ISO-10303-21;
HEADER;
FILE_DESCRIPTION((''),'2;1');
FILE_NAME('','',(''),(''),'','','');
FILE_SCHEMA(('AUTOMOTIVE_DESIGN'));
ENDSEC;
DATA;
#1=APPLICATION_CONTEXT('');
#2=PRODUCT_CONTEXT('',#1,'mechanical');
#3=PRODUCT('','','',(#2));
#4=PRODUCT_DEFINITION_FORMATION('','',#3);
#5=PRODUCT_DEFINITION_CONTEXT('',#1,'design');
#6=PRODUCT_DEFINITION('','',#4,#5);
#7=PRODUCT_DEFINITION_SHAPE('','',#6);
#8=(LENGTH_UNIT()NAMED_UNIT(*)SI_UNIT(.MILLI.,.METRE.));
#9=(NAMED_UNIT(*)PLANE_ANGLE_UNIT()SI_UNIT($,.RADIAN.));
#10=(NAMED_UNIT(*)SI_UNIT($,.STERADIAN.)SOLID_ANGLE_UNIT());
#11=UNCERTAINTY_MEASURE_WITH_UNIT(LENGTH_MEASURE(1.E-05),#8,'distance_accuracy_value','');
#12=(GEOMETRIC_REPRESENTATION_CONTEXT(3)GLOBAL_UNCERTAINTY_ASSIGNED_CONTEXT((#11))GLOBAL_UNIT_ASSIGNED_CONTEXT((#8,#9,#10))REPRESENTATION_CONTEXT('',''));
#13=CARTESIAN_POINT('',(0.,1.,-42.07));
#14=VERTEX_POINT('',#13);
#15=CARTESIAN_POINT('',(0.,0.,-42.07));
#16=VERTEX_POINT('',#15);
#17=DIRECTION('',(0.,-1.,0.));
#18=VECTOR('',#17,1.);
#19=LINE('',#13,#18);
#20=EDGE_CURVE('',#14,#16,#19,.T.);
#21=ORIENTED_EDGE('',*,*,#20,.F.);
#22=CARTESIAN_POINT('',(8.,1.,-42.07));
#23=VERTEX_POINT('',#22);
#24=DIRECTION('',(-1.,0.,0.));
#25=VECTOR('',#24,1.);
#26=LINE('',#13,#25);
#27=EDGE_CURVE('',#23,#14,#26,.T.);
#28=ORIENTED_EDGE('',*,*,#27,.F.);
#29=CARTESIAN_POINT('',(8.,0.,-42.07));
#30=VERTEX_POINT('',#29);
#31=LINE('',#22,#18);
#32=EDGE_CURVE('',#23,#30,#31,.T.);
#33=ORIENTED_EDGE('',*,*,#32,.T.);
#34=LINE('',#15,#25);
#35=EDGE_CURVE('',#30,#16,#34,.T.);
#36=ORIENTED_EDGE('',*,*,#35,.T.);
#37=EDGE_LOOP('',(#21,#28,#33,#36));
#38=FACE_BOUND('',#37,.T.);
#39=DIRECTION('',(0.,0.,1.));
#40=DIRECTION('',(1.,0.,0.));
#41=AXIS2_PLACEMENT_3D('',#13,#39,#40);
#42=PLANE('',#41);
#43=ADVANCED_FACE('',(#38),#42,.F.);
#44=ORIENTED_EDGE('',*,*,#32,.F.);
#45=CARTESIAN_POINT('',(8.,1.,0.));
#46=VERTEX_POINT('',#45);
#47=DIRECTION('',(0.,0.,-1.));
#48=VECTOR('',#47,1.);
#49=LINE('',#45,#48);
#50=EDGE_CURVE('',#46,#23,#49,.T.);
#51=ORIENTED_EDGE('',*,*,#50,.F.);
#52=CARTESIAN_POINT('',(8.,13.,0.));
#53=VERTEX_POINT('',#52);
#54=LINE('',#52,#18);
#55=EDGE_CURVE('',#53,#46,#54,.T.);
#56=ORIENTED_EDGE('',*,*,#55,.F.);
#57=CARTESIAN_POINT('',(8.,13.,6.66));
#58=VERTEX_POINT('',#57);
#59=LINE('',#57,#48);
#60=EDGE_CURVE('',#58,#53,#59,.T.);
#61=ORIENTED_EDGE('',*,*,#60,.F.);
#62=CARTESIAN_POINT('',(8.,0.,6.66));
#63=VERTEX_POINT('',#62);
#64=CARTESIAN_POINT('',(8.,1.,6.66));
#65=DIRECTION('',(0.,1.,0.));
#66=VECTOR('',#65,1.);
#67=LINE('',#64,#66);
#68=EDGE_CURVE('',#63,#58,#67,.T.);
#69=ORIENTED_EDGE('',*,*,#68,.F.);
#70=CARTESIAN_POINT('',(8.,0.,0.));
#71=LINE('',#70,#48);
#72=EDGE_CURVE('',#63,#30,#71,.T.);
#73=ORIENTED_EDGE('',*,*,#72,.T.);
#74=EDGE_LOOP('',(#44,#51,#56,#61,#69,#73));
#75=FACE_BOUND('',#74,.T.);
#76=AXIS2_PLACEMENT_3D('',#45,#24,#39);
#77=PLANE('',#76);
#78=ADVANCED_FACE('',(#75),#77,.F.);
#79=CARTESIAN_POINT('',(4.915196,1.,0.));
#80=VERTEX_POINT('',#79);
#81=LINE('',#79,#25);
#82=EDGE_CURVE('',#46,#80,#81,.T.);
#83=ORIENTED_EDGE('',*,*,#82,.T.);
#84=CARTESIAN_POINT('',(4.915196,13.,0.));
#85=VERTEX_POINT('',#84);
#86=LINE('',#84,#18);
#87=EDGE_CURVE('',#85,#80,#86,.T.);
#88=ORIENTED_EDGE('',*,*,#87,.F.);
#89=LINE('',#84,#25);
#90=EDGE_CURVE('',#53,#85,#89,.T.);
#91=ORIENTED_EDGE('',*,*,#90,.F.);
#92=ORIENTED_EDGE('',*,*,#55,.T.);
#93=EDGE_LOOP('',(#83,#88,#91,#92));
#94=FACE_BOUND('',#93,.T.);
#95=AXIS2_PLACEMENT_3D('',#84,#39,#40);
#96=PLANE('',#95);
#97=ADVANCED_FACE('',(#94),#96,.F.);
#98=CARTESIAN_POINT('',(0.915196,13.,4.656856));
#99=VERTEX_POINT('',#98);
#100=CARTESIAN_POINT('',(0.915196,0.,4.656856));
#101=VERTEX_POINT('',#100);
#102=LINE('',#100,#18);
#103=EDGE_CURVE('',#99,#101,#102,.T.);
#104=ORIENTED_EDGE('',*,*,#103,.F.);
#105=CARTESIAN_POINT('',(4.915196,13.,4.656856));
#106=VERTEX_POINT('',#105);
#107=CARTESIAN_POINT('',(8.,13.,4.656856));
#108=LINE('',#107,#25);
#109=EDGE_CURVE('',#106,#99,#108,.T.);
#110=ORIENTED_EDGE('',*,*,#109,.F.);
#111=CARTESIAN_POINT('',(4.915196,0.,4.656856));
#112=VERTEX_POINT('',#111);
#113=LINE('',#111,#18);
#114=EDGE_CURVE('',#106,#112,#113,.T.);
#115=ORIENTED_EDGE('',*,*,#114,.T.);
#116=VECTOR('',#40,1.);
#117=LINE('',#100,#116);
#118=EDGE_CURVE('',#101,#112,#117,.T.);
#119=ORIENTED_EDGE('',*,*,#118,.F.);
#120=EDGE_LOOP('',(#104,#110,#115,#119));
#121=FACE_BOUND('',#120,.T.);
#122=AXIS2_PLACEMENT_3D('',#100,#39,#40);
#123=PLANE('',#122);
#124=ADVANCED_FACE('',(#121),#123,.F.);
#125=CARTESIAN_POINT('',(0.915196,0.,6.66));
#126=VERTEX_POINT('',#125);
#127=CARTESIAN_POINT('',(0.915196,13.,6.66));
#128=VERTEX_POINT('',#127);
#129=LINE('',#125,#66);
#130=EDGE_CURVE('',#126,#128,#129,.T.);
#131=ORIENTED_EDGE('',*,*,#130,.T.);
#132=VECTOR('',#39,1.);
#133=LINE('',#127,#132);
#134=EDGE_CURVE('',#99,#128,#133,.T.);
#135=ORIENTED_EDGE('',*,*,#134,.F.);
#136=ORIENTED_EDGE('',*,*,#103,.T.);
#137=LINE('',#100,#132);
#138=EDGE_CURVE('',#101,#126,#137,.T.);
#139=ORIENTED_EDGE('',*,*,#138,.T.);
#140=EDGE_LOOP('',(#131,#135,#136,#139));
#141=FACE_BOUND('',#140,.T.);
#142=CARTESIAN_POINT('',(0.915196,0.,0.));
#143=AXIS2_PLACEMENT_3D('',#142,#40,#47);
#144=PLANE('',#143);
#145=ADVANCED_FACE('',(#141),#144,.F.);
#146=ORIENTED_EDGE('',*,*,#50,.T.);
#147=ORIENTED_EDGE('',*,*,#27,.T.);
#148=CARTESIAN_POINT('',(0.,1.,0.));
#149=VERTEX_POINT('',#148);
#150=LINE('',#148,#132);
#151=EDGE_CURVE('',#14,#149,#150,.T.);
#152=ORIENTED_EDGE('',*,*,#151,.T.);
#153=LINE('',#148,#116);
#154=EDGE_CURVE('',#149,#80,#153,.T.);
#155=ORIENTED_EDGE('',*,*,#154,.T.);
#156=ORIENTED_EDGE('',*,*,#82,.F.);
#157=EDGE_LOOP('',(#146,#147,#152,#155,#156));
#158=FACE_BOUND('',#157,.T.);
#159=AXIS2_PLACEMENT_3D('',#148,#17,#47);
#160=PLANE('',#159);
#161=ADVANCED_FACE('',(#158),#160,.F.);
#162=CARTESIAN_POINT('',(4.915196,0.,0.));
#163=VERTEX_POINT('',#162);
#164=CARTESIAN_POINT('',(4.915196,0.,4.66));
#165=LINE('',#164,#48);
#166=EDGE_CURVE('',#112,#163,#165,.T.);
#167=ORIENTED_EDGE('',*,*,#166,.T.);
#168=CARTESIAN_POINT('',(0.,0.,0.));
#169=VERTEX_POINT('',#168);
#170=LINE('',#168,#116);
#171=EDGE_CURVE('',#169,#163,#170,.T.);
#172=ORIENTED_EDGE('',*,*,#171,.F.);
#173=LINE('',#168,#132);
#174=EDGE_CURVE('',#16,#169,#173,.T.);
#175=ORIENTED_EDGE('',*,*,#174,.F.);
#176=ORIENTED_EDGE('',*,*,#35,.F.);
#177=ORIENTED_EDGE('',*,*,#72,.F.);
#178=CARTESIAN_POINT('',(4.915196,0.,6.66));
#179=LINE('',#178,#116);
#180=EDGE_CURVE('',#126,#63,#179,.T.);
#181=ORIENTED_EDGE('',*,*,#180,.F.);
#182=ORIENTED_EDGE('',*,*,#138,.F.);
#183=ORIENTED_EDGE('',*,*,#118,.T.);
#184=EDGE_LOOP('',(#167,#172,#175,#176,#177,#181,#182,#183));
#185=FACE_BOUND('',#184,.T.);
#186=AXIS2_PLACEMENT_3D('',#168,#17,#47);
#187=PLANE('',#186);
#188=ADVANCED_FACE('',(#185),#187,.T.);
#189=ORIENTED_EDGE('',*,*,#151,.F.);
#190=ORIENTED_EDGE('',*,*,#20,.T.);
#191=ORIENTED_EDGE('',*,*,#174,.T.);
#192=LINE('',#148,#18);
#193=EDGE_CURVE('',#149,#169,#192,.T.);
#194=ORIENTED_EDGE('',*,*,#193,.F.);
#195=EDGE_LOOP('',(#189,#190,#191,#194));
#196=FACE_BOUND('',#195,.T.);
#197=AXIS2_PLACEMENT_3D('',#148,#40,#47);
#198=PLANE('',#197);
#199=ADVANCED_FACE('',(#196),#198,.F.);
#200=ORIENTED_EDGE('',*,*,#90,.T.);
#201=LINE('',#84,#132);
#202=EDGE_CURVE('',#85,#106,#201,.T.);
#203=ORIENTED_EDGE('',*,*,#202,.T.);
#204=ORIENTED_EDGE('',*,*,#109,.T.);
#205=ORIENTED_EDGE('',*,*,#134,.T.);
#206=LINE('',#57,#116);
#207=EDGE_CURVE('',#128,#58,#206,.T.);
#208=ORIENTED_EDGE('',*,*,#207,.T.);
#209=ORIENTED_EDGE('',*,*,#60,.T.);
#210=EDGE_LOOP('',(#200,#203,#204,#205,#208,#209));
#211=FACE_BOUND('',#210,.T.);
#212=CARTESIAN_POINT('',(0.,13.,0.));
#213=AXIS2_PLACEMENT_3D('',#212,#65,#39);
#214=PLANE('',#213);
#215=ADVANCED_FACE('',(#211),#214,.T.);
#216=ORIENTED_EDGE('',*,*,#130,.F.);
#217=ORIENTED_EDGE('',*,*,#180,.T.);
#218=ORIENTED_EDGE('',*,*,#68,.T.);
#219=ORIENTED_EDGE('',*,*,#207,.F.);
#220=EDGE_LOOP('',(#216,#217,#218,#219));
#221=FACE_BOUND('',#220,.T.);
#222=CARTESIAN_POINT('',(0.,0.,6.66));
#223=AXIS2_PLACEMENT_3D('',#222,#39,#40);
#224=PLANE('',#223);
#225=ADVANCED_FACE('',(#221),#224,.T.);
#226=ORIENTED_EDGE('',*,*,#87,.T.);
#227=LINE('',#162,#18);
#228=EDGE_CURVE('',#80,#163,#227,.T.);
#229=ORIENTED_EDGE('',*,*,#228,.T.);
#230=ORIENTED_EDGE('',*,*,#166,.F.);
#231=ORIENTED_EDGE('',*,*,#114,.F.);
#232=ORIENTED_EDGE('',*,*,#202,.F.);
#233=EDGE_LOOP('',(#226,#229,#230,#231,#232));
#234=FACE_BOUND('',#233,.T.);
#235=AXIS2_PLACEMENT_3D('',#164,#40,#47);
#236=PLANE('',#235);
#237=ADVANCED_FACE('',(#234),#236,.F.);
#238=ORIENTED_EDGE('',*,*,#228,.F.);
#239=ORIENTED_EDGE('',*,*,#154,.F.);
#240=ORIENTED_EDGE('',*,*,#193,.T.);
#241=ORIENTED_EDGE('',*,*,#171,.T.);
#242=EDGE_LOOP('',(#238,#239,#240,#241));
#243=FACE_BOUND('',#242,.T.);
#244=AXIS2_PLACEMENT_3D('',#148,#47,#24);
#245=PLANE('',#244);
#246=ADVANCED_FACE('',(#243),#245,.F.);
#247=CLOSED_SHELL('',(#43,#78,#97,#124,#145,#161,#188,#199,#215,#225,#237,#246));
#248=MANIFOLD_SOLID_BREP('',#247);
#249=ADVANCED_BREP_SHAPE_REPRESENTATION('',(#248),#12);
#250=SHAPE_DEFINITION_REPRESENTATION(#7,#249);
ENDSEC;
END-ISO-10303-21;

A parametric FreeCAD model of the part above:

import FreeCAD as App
import Part
import Sketcher

V = App.Vector
Q = App.Units.Quantity

doc = App.newDocument("Part")
body = doc.addObject("PartDesign::Body", "Body")

# Sketch on XZ plane
sketch1 = doc.addObject("Sketcher::SketchObject", "Sketch")
body.addObject(sketch1)
sketch1.AttachmentSupport = (doc.XZ_Plane, [""])
sketch1.MapMode = "FlatFace"
sketch1.addGeometry([
    Part.LineSegment(V(0, -42.07, 0), V(0, 0, 0)),
    Part.LineSegment(V(0, 0, 0), V(8, 0, 0)),
    Part.LineSegment(V(8, 0, 0), V(8, -42.07, 0)),
    Part.LineSegment(V(8, -42.07, 0), V(0, -42.07, 0)),
], False)
sketch1.addConstraint([
    Sketcher.Constraint("Coincident", 0, 2, 1, 1),
    Sketcher.Constraint("Coincident", 1, 2, 2, 1),
    Sketcher.Constraint("Coincident", 2, 2, 3, 1),
    Sketcher.Constraint("Coincident", 3, 2, 0, 1),
    Sketcher.Constraint("Vertical", 0),
    Sketcher.Constraint("Horizontal", 1),
    Sketcher.Constraint("Vertical", 2),
    Sketcher.Constraint("Horizontal", 3),
    Sketcher.Constraint("Coincident", 0, 2, -1, 1),
    Sketcher.Constraint("DistanceX", 1, 1, 1, 2, Q("8 mm")),
    Sketcher.Constraint("DistanceY", 0, 1, 0, 2, Q("42.07 mm")),
])
pad1 = doc.addObject("PartDesign::Pad", "Pad")
body.addObject(pad1)
pad1.Profile = sketch1
pad1.Length = 1
pad1.Reversed = True

# Sketch on XY plane
sketch2 = doc.addObject("Sketcher::SketchObject", "Sketch001")
body.addObject(sketch2)
sketch2.AttachmentSupport = (doc.XY_Plane, [""])
sketch2.MapMode = "FlatFace"
sketch2.addGeometry([
    Part.LineSegment(V(4.915196, 1, 0), V(4.915196, 0, 0)),
    Part.LineSegment(V(4.915196, 0, 0), V(8, 0, 0)),
    Part.LineSegment(V(8, 0, 0), V(8, 1, 0)),
    Part.LineSegment(V(8, 1, 0), V(4.915196, 1, 0)),
], False)
sketch2.addConstraint([
    Sketcher.Constraint("Coincident", 0, 2, 1, 1),
    Sketcher.Constraint("Coincident", 1, 2, 2, 1),
    Sketcher.Constraint("Coincident", 2, 2, 3, 1),
    Sketcher.Constraint("Coincident", 3, 2, 0, 1),
    Sketcher.Constraint("Vertical", 0),
    Sketcher.Constraint("Horizontal", 1),
    Sketcher.Constraint("Vertical", 2),
    Sketcher.Constraint("Horizontal", 3),
    Sketcher.Constraint("PointOnObject", 0, 2, -1),
    Sketcher.Constraint("DistanceY", 0, 2, 0, 1, Q("1 mm")),
    Sketcher.Constraint("DistanceX", -1, 1, 1, 2, Q("8 mm")),
    Sketcher.Constraint("DistanceX", 1, 1, 1, 2, Q("3.084804 mm")),
])
pad2 = doc.addObject("PartDesign::Pad", "Pad001")
body.addObject(pad2)
pad2.Profile = sketch2
pad2.Length = 4.66

# Sketch on XY plane
sketch3 = doc.addObject("Sketcher::SketchObject", "Sketch002")
body.addObject(sketch3)
sketch3.AttachmentSupport = (doc.XY_Plane, [""])
sketch3.MapMode = "FlatFace"
sketch3.AttachmentOffset = App.Placement(V(0, 0, 4.66), App.Rotation())
sketch3.addGeometry([
    Part.LineSegment(V(4.915196, 1, 0), V(4.915196, 0, 0)),
    Part.LineSegment(V(4.915196, 0, 0), V(8, 0, 0)),
    Part.LineSegment(V(8, 0, 0), V(8, 1, 0)),
    Part.LineSegment(V(8, 1, 0), V(4.915196, 1, 0)),
], False)
sketch3.addConstraint([
    Sketcher.Constraint("Coincident", 0, 2, 1, 1),
    Sketcher.Constraint("Coincident", 1, 2, 2, 1),
    Sketcher.Constraint("Coincident", 2, 2, 3, 1),
    Sketcher.Constraint("Coincident", 3, 2, 0, 1),
    Sketcher.Constraint("Vertical", 0),
    Sketcher.Constraint("Horizontal", 1),
    Sketcher.Constraint("Vertical", 2),
    Sketcher.Constraint("Horizontal", 3),
    Sketcher.Constraint("PointOnObject", 0, 2, -1),
    Sketcher.Constraint("DistanceY", 0, 2, 0, 1, Q("1 mm")),
    Sketcher.Constraint("DistanceX", -1, 1, 1, 2, Q("8 mm")),
    Sketcher.Constraint("DistanceX", 1, 1, 1, 2, Q("3.084804 mm")),
])
pad3 = doc.addObject("PartDesign::Pad", "Pad002")
body.addObject(pad3)
pad3.Profile = sketch3
pad3.Length = 2

# Sketch on YZ plane
sketch4 = doc.addObject("Sketcher::SketchObject", "Sketch003")
body.addObject(sketch4)
sketch4.AttachmentSupport = (doc.YZ_Plane, [""])
sketch4.MapMode = "FlatFace"
sketch4.AttachmentOffset = App.Placement(V(0, 0, 4.915196), App.Rotation())
sketch4.addGeometry([
    Part.LineSegment(V(1, 4.656856, 0), V(0, 4.656856, 0)),
    Part.LineSegment(V(0, 4.656856, 0), V(0, 6.66, 0)),
    Part.LineSegment(V(0, 6.66, 0), V(1, 6.66, 0)),
    Part.LineSegment(V(1, 6.66, 0), V(1, 4.656856, 0)),
], False)
sketch4.addConstraint([
    Sketcher.Constraint("Coincident", 0, 2, 1, 1),
    Sketcher.Constraint("Coincident", 1, 2, 2, 1),
    Sketcher.Constraint("Coincident", 2, 2, 3, 1),
    Sketcher.Constraint("Coincident", 3, 2, 0, 1),
    Sketcher.Constraint("Horizontal", 0),
    Sketcher.Constraint("Vertical", 1),
    Sketcher.Constraint("Horizontal", 2),
    Sketcher.Constraint("Vertical", 3),
    Sketcher.Constraint("PointOnObject", 0, 2, -2),
    Sketcher.Constraint("DistanceX", 0, 2, 0, 1, Q("1 mm")),
    Sketcher.Constraint("DistanceY", -1, 1, 1, 2, Q("6.66 mm")),
    Sketcher.Constraint("DistanceY", 1, 1, 1, 2, Q("2.003144 mm")),
])
pad4 = doc.addObject("PartDesign::Pad", "Pad003")
body.addObject(pad4)
pad4.Profile = sketch4
pad4.Length = 4
pad4.Reversed = True

# Sketch on XZ plane
sketch5 = doc.addObject("Sketcher::SketchObject", "Sketch004")
body.addObject(sketch5)
sketch5.AttachmentSupport = (doc.XZ_Plane, [""])
sketch5.MapMode = "FlatFace"
sketch5.AttachmentOffset = App.Placement(V(0, 0, -1), App.Rotation())
sketch5.addGeometry([
    Part.LineSegment(V(0.915196, 4.656856, 0), V(0.915196, 6.66, 0)),
    Part.LineSegment(V(0.915196, 6.66, 0), V(8, 6.66, 0)),
    Part.LineSegment(V(8, 6.66, 0), V(8, 4.656856, 0)),
    Part.LineSegment(V(8, 4.656856, 0), V(0.915196, 4.656856, 0)),
], False)
sketch5.addConstraint([
    Sketcher.Constraint("Coincident", 0, 2, 1, 1),
    Sketcher.Constraint("Coincident", 1, 2, 2, 1),
    Sketcher.Constraint("Coincident", 2, 2, 3, 1),
    Sketcher.Constraint("Coincident", 3, 2, 0, 1),
    Sketcher.Constraint("Vertical", 0),
    Sketcher.Constraint("Horizontal", 1),
    Sketcher.Constraint("Vertical", 2),
    Sketcher.Constraint("Horizontal", 3),
    Sketcher.Constraint("DistanceX", -1, 1, 1, 2, Q("8 mm")),
    Sketcher.Constraint("DistanceY", -1, 1, 0, 2, Q("6.66 mm")),
    Sketcher.Constraint("DistanceX", 1, 1, 1, 2, Q("7.084804 mm")),
    Sketcher.Constraint("DistanceY", 0, 1, 0, 2, Q("2.003144 mm")),
])
pad5 = doc.addObject("PartDesign::Pad", "Pad004")
body.addObject(pad5)
pad5.Profile = sketch5
pad5.Length = 12
pad5.Reversed = True

# Sketch on XZ plane
sketch6 = doc.addObject("Sketcher::SketchObject", "Sketch005")
body.addObject(sketch6)
sketch6.AttachmentSupport = (doc.XZ_Plane, [""])
sketch6.MapMode = "FlatFace"
sketch6.AttachmentOffset = App.Placement(V(0, 0, -1), App.Rotation())
sketch6.addGeometry([
    Part.LineSegment(V(4.915196, 0, 0), V(4.915196, 4.656856, 0)),
    Part.LineSegment(V(4.915196, 4.656856, 0), V(8, 4.656856, 0)),
    Part.LineSegment(V(8, 4.656856, 0), V(8, 0, 0)),
    Part.LineSegment(V(8, 0, 0), V(4.915196, 0, 0)),
], False)
sketch6.addConstraint([
    Sketcher.Constraint("Coincident", 0, 2, 1, 1),
    Sketcher.Constraint("Coincident", 1, 2, 2, 1),
    Sketcher.Constraint("Coincident", 2, 2, 3, 1),
    Sketcher.Constraint("Coincident", 3, 2, 0, 1),
    Sketcher.Constraint("Vertical", 0),
    Sketcher.Constraint("Horizontal", 1),
    Sketcher.Constraint("Vertical", 2),
    Sketcher.Constraint("Horizontal", 3),
    Sketcher.Constraint("PointOnObject", 2, 2, -1),
    Sketcher.Constraint("DistanceX", -1, 1, 1, 2, Q("8 mm")),
    Sketcher.Constraint("DistanceX", 1, 1, 1, 2, Q("3.084804 mm")),
    Sketcher.Constraint("DistanceY", 0, 1, 0, 2, Q("4.656856 mm")),
])
pad6 = doc.addObject("PartDesign::Pad", "Pad005")
body.addObject(pad6)
pad6.Profile = sketch6
pad6.Length = 12
pad6.Reversed = True

doc.recompute()
